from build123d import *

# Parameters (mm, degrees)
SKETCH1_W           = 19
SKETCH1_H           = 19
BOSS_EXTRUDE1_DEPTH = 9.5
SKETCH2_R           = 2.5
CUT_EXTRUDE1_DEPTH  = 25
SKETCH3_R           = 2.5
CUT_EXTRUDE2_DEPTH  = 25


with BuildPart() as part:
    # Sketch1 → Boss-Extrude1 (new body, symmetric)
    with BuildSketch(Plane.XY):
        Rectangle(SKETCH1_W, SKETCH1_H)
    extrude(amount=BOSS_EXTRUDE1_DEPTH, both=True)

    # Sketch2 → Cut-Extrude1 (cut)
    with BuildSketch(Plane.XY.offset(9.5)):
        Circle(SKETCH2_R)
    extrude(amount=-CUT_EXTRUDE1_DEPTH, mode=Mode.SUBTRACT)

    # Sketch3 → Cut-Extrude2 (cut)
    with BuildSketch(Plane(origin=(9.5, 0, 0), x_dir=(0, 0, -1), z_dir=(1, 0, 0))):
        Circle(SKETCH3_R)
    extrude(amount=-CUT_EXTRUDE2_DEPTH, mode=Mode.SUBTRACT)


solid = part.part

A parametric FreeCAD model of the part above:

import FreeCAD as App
import Part
import Sketcher
Q = App.Units.Quantity

doc = App.newDocument("Part")
body = doc.addObject("PartDesign::Body", "Body")

# Sketch on XY plane
sketch1 = body.newObject("Sketcher::SketchObject", "Sketch")
sketch1.AttachmentSupport = (doc.getObject("XY_Plane"), [""])
sketch1.MapMode = "FlatFace"
sketch1.addGeometry(Part.LineSegment(App.Vector(-10, 10, 0), App.Vector(-10, -10, 0)), False)
sketch1.addGeometry(Part.LineSegment(App.Vector(-10, -10, 0), App.Vector(10, -10, 0)), False)
sketch1.addGeometry(Part.LineSegment(App.Vector(10, -10, 0), App.Vector(10, 10, 0)), False)
sketch1.addGeometry(Part.LineSegment(App.Vector(10, 10, 0), App.Vector(-10, 10, 0)), False)
sketch1.addConstraint(Sketcher.Constraint("Coincident", 0, 2, 1, 1))
sketch1.addConstraint(Sketcher.Constraint("Coincident", 1, 2, 2, 1))
sketch1.addConstraint(Sketcher.Constraint("Coincident", 2, 2, 3, 1))
sketch1.addConstraint(Sketcher.Constraint("Coincident", 3, 2, 0, 1))
sketch1.addConstraint(Sketcher.Constraint("Vertical", 0))
sketch1.addConstraint(Sketcher.Constraint("Horizontal", 1))
sketch1.addConstraint(Sketcher.Constraint("Vertical", 2))
sketch1.addConstraint(Sketcher.Constraint("Horizontal", 3))
sketch1.addConstraint(Sketcher.Constraint("Symmetric", 0, 2, 2, 2, -1, 1))
sketch1.addConstraint(Sketcher.Constraint("Equal", 3, 0))
sketch1.addConstraint(Sketcher.Constraint("DistanceX", 1, 1, 1, 2, Q("19 mm")))
pad1 = body.newObject("PartDesign::Pad", "Pad")
pad1.Profile = sketch1
pad1.Length = 19
pad1.Midplane = True

# Sketch on XY plane
sketch2 = body.newObject("Sketcher::SketchObject", "Sketch001")
sketch2.AttachmentSupport = (doc.getObject("XY_Plane"), [""])
sketch2.MapMode = "FlatFace"
sketch2.AttachmentOffset = App.Placement(App.Vector(0, 0, 9.5), App.Rotation())
sketch2.addGeometry(Part.Circle(App.Vector(0, 0, 0), App.Vector(0, 0, 1), 2.5), False)
sketch2.addConstraint(Sketcher.Constraint("Coincident", 0, 3, -1, 1))
sketch2.addConstraint(Sketcher.Constraint("Diameter", 0, Q("5 mm")))
pocket1 = body.newObject("PartDesign::Pocket", "Pocket")
pocket1.Profile = sketch2
pocket1.Length = 25

# Sketch on YZ plane
sketch3 = body.newObject("Sketcher::SketchObject", "Sketch002")
sketch3.AttachmentSupport = (doc.getObject("YZ_Plane"), [""])
sketch3.MapMode = "FlatFace"
sketch3.AttachmentOffset = App.Placement(App.Vector(0, 0, 9.5), App.Rotation())
sketch3.addGeometry(Part.Circle(App.Vector(0, 0, 0), App.Vector(0, 0, 1), 2.5), False)
sketch3.addConstraint(Sketcher.Constraint("Coincident", 0, 3, -1, 1))
sketch3.addConstraint(Sketcher.Constraint("Diameter", 0, Q("5 mm")))
pocket2 = body.newObject("PartDesign::Pocket", "Pocket001")
pocket2.Profile = sketch3
pocket2.Length = 25

doc.recompute()
